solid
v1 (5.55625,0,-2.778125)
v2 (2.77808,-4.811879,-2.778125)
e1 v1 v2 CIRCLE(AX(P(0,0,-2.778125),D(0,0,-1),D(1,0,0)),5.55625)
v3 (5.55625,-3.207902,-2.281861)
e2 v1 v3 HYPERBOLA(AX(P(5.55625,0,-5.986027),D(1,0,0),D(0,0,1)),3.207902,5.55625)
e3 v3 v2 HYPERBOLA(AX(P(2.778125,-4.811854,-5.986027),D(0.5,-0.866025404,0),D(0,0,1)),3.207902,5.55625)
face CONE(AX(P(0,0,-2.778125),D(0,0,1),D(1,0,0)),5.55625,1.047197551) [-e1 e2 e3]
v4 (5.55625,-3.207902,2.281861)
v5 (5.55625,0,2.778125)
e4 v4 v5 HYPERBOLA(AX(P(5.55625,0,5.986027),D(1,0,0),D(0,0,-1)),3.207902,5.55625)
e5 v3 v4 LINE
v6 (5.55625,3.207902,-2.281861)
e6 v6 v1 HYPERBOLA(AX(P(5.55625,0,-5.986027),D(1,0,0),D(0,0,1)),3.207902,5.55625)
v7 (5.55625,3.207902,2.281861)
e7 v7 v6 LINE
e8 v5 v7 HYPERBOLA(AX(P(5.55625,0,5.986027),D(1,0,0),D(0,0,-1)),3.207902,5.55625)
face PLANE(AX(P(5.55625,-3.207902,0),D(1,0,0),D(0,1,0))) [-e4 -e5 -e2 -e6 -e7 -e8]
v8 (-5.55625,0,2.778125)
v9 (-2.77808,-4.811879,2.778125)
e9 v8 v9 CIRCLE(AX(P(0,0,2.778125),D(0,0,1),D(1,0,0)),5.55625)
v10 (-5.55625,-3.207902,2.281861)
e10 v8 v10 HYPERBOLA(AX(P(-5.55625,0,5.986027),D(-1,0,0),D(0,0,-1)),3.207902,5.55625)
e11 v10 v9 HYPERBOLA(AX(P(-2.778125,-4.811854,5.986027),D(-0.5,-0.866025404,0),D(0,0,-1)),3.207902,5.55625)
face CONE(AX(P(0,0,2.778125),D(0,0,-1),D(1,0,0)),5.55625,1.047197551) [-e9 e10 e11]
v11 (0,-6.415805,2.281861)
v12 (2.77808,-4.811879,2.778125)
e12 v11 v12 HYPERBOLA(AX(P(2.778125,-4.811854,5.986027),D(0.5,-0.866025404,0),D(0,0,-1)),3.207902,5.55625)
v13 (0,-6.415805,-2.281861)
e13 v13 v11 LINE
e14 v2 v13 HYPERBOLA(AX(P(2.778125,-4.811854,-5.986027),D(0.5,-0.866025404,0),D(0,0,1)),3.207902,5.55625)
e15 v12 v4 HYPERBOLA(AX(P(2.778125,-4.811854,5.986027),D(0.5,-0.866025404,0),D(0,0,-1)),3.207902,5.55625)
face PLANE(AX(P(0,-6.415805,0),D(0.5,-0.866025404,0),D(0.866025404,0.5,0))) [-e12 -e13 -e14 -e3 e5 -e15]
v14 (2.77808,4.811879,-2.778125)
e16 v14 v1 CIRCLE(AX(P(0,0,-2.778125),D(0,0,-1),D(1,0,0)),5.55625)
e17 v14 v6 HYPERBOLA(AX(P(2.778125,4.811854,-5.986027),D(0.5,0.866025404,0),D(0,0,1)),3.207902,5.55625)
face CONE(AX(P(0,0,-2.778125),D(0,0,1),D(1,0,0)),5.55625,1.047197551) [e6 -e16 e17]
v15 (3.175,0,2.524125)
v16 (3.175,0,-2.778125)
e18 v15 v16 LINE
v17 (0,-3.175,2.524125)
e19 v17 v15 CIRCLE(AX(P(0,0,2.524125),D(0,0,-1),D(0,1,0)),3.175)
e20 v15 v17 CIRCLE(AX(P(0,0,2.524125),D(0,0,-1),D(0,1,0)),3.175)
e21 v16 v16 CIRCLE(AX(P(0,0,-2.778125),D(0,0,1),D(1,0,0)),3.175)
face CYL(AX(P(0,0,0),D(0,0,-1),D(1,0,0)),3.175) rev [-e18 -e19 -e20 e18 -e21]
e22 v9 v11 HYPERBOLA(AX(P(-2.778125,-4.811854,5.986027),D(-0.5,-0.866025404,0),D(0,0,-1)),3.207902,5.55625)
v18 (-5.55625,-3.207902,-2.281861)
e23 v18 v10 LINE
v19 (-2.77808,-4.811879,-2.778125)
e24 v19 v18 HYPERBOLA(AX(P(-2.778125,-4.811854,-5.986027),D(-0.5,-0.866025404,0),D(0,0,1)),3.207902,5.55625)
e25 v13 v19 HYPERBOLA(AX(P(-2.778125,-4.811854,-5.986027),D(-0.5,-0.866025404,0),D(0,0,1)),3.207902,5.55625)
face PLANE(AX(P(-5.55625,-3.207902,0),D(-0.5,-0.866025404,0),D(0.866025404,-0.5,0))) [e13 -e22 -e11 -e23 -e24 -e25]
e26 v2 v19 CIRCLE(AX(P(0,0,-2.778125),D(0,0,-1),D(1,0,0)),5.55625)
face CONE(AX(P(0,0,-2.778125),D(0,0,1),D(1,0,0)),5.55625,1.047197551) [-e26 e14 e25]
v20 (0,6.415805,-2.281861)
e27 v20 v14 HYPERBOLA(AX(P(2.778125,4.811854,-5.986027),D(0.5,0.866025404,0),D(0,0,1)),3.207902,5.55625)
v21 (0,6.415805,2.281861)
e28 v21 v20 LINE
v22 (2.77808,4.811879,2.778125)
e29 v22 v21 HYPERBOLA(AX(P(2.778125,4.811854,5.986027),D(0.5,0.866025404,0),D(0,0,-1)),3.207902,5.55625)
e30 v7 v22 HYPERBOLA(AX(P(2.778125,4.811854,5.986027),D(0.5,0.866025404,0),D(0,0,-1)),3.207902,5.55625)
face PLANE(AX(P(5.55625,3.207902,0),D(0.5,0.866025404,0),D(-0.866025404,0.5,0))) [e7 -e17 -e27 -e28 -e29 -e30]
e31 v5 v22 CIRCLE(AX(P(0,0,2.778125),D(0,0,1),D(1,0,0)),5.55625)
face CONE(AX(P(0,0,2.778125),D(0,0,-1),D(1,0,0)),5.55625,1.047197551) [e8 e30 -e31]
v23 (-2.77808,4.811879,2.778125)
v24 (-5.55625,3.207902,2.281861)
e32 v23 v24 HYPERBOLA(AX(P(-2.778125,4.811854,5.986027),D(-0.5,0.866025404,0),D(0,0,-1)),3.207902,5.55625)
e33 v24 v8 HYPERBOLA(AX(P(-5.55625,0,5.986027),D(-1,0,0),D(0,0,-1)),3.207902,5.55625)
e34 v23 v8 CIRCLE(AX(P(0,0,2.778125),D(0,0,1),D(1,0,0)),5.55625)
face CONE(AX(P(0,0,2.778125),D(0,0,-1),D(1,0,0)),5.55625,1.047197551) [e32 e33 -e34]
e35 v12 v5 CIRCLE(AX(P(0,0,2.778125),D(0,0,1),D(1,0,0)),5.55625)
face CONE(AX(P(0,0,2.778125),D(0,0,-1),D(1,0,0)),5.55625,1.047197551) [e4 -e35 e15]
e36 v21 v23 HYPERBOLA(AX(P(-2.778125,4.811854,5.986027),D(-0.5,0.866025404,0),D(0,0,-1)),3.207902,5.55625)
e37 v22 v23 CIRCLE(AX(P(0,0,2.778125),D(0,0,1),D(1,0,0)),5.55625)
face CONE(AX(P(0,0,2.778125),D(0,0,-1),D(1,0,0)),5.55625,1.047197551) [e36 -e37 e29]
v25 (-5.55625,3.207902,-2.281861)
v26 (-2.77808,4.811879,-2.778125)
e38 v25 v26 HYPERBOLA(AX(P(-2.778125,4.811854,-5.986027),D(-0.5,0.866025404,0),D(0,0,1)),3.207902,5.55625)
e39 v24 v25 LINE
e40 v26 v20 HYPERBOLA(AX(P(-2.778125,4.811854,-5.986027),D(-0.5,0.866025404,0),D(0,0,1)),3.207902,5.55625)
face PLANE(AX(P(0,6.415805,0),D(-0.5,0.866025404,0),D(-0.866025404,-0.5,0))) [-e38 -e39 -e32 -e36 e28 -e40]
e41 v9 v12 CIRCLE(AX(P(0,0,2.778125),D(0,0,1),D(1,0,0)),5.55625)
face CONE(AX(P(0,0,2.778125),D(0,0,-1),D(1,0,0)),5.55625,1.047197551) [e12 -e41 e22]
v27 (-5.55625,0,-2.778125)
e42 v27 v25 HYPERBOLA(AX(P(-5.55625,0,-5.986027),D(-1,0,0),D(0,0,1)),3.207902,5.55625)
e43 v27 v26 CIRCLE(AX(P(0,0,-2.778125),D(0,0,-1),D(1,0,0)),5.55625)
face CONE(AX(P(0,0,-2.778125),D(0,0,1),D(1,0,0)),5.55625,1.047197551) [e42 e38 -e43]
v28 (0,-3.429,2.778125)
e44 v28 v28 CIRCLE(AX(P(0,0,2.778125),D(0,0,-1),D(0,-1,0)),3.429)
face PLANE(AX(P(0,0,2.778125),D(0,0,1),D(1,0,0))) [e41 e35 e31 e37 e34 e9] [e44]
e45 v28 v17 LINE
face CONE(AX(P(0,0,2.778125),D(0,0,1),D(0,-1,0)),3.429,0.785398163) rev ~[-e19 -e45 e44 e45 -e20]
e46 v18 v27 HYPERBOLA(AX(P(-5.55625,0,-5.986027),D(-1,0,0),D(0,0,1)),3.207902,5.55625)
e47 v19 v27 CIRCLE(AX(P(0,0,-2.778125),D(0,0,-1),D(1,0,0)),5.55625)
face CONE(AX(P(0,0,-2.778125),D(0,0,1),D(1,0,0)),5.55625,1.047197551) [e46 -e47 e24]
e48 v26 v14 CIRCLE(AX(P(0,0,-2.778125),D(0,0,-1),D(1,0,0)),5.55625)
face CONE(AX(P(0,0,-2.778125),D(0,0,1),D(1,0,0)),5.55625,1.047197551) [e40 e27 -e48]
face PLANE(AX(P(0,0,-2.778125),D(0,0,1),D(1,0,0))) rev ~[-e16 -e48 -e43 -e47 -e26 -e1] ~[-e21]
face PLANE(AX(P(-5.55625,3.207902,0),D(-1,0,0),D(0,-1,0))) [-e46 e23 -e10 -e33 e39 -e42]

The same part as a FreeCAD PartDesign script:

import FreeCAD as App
import Part
import Sketcher
Q = App.Units.Quantity


def faces_at(feature, points):
    """Names of the faces that lie closest to the given points."""
    faces = feature.Shape.Faces
    near = lambda p: min(range(len(faces)), key=lambda i: faces[i].distToShape(Part.Vertex(*p))[0])
    return sorted({f"Face{near(p) + 1}" for p in points})

doc = App.newDocument("Part")
params = doc.addObject("Spreadsheet::Sheet", "Params")
for row, (alias, value) in enumerate([
    ("sketch1_diameter", "0.25 in"),
    ("pad1_length", "0.21875 in"),
    ("sketch2_diameter", "0.4375 in"),
    ("pad2_length", "11.144278 mm"),
    ("draft_angle", "60 deg"),
    ("sketch3_diameter", "0.4375 in"),
    ("pad3_length", "11.144278 mm"),
    ("draft2_angle", "60 deg"),
    ("sketch4_width", "0.135 in"),
    ("groove_angle", "360 deg"),
], start=1):
    params.set(f"A{row}", alias)
    params.set(f"B{row}", "=" + value)
    params.setAlias(f"B{row}", alias)

body = doc.addObject("PartDesign::Body", "Body")

sketch1 = doc.addObject("Sketcher::SketchObject", "Sketch")
body.addObject(sketch1)
sketch1.AttachmentSupport = (doc.XY_Plane, [""])
sketch1.MapMode = "FlatFace"
sketch1.addGeometry(Part.LineSegment(App.Vector(-5.55625, 3.207902, 0), App.Vector(-5.55625, -3.207902, 0)), False)
sketch1.addGeometry(Part.LineSegment(App.Vector(-5.55625, -3.207902, 0), App.Vector(0, -6.415805, 0)), False)
sketch1.addGeometry(Part.LineSegment(App.Vector(0, -6.415805, 0), App.Vector(5.55625, -3.207902, 0)), False)
sketch1.addGeometry(Part.LineSegment(App.Vector(5.55625, -3.207902, 0), App.Vector(5.55625, 3.207902, 0)), False)
sketch1.addGeometry(Part.LineSegment(App.Vector(5.55625, 3.207902, 0), App.Vector(0, 6.415805, 0)), False)
sketch1.addGeometry(Part.LineSegment(App.Vector(0, 6.415805, 0), App.Vector(-5.55625, 3.207902, 0)), False)
sketch1.addGeometry(Part.Circle(App.Vector(0, 0, 0), App.Vector(0, 0, 1), 3.175), False)
sketch1.addConstraint(Sketcher.Constraint("Coincident", 0, 2, 1, 1))
sketch1.addConstraint(Sketcher.Constraint("Coincident", 1, 2, 2, 1))
sketch1.addConstraint(Sketcher.Constraint("Coincident", 2, 2, 3, 1))
sketch1.addConstraint(Sketcher.Constraint("Coincident", 3, 2, 4, 1))
sketch1.addConstraint(Sketcher.Constraint("Coincident", 4, 2, 5, 1))
sketch1.addConstraint(Sketcher.Constraint("Coincident", 5, 2, 0, 1))
sketch1.addConstraint(Sketcher.Constraint("Vertical", 0))
sketch1.addConstraint(Sketcher.Constraint("Vertical", 3))
sketch1.addConstraint(Sketcher.Constraint("Coincident", 6, 3, -1, 1))
sketch1.addConstraint(Sketcher.Constraint("Symmetric", 0, 2, 3, 2, -1, 1))
sketch1.addConstraint(Sketcher.Constraint("Symmetric", 1, 2, 4, 2, -1, 1))
sketch1.addConstraint(Sketcher.Constraint("PointOnObject", 1, 2, -2))
sketch1.addConstraint(Sketcher.Constraint("Parallel", 2, 5))
sketch1.addConstraint(Sketcher.Constraint("Horizontal", 0, 2, 2, 2))
sketch1.addConstraint(Sketcher.Constraint("Diameter", 6, Q("0.25 in")))
sketch1.addConstraint(Sketcher.Constraint("Angle", 1, Q("-30 deg")))
sketch1.addConstraint(Sketcher.Constraint("DistanceX", 0, 2, -1, 1, Q("0.21875 in")))
sketch1.addConstraint(Sketcher.Constraint("DistanceY", 0, 2, 0, 1, 6.415805))
sketch1.setExpression("Constraints[14]", "Params.sketch1_diameter")
pad1 = doc.addObject("PartDesign::Pad", "Pad")
body.addObject(pad1)
pad1.Profile = sketch1
pad1.setExpression("Length", "Params.pad1_length")
pad1.Midplane = True
body2 = doc.addObject("PartDesign::Body", "Body001")

sketch2 = doc.addObject("Sketcher::SketchObject", "Sketch001")
body2.addObject(sketch2)
sketch2.AttachmentSupport = (doc.getObject("XY_Plane001"), [""])
sketch2.MapMode = "FlatFace"
sketch2.AttachmentOffset = App.Placement(App.Vector(0, 0, 0.109375 * 25.4), App.Rotation())
sketch2.addGeometry(Part.LineSegment(App.Vector(-27.645, 28.505, 0), App.Vector(-27.645, -28.505, 0)), False)
sketch2.addGeometry(Part.LineSegment(App.Vector(-27.645, -28.505, 0), App.Vector(27.645, -28.505, 0)), False)
sketch2.addGeometry(Part.LineSegment(App.Vector(27.645, -28.505, 0), App.Vector(27.645, 28.505, 0)), False)
sketch2.addGeometry(Part.LineSegment(App.Vector(27.645, 28.505, 0), App.Vector(-27.645, 28.505, 0)), False)
sketch2.addGeometry(Part.Circle(App.Vector(0, 0, 0), App.Vector(0, 0, 1), 5.55625), False)
sketch2.addConstraint(Sketcher.Constraint("Coincident", 0, 2, 1, 1))
sketch2.addConstraint(Sketcher.Constraint("Coincident", 1, 2, 2, 1))
sketch2.addConstraint(Sketcher.Constraint("Coincident", 2, 2, 3, 1))
sketch2.addConstraint(Sketcher.Constraint("Coincident", 3, 2, 0, 1))
sketch2.addConstraint(Sketcher.Constraint("Vertical", 0))
sketch2.addConstraint(Sketcher.Constraint("Horizontal", 1))
sketch2.addConstraint(Sketcher.Constraint("Vertical", 2))
sketch2.addConstraint(Sketcher.Constraint("Horizontal", 3))
sketch2.addConstraint(Sketcher.Constraint("Coincident", 4, 3, -1, 1))
sketch2.addConstraint(Sketcher.Constraint("Symmetric", 0, 2, 2, 2, -1, 1))
sketch2.addConstraint(Sketcher.Constraint("Diameter", 4, Q("0.4375 in")))
sketch2.addConstraint(Sketcher.Constraint("DistanceX", 1, 1, 1, 2, 55.29))
sketch2.addConstraint(Sketcher.Constraint("DistanceY", 0, 2, 0, 1, 57.01))
sketch2.setExpression("Constraints[10]", "Params.sketch2_diameter")
pad2 = doc.addObject("PartDesign::Pad", "Pad001")
body2.addObject(pad2)
pad2.Profile = sketch2
pad2.setExpression("Length", "Params.pad2_length")
pad2.Reversed = True
doc.recompute()

datumplane = doc.addObject("PartDesign::Plane", "DatumPlane")
body2.addObject(datumplane)
datumplane.AttachmentSupport = (doc.getObject("XY_Plane001"), [""])
datumplane.MapMode = "FlatFace"
datumplane.AttachmentOffset = App.Placement(App.Vector(0, 0, 0.109375 * 25.4), App.Rotation())
draft = doc.addObject("PartDesign::Draft", "Draft")
body2.addObject(draft)
draft.Base = (pad2, faces_at(pad2, [
    (0, -28.505, -2.794),
    (27.645, 0, -2.794),
    (0, 28.505, -2.794),
    (-27.645, 0, -2.794),
    (-5.556, 0, -2.794),
]))
draft.NeutralPlane = (datumplane, [""])
draft.setExpression("Angle", "Params.draft_angle")
draft.Reversed = True
doc.recompute()

boolean = doc.addObject("PartDesign::Boolean", "Boolean")
body.addObject(boolean)
boolean.Type = "Cut"
boolean.addObjects([body2])
body3 = doc.addObject("PartDesign::Body", "Body002")

sketch3 = doc.addObject("Sketcher::SketchObject", "Sketch002")
body3.addObject(sketch3)
sketch3.AttachmentSupport = (doc.getObject("XY_Plane002"), [""])
sketch3.MapMode = "FlatFace"
sketch3.AttachmentOffset = App.Placement(App.Vector(0, 0, -0.109375 * 25.4), App.Rotation())
sketch3.addGeometry(Part.LineSegment(App.Vector(-27.645, -28.505, 0), App.Vector(-27.645, 28.505, 0)), False)
sketch3.addGeometry(Part.LineSegment(App.Vector(-27.645, 28.505, 0), App.Vector(27.645, 28.505, 0)), False)
sketch3.addGeometry(Part.LineSegment(App.Vector(27.645, 28.505, 0), App.Vector(27.645, -28.505, 0)), False)
sketch3.addGeometry(Part.LineSegment(App.Vector(27.645, -28.505, 0), App.Vector(-27.645, -28.505, 0)), False)
sketch3.addGeometry(Part.Circle(App.Vector(0, 0, 0), App.Vector(0, 0, 1), 5.55625), False)
sketch3.addConstraint(Sketcher.Constraint("Coincident", 0, 2, 1, 1))
sketch3.addConstraint(Sketcher.Constraint("Coincident", 1, 2, 2, 1))
sketch3.addConstraint(Sketcher.Constraint("Coincident", 2, 2, 3, 1))
sketch3.addConstraint(Sketcher.Constraint("Coincident", 3, 2, 0, 1))
sketch3.addConstraint(Sketcher.Constraint("Vertical", 0))
sketch3.addConstraint(Sketcher.Constraint("Horizontal", 1))
sketch3.addConstraint(Sketcher.Constraint("Vertical", 2))
sketch3.addConstraint(Sketcher.Constraint("Horizontal", 3))
sketch3.addConstraint(Sketcher.Constraint("Coincident", 4, 3, -1, 1))
sketch3.addConstraint(Sketcher.Constraint("Symmetric", 0, 2, 2, 2, -1, 1))
sketch3.addConstraint(Sketcher.Constraint("Diameter", 4, Q("0.4375 in")))
sketch3.addConstraint(Sketcher.Constraint("DistanceX", 1, 1, 1, 2, 55.29))
sketch3.addConstraint(Sketcher.Constraint("DistanceY", 0, 1, 0, 2, 57.01))
sketch3.setExpression("Constraints[10]", "Params.sketch3_diameter")
pad3 = doc.addObject("PartDesign::Pad", "Pad002")
body3.addObject(pad3)
pad3.Profile = sketch3
pad3.setExpression("Length", "Params.pad3_length")
doc.recompute()

datumplane2 = doc.addObject("PartDesign::Plane", "DatumPlane001")
body3.addObject(datumplane2)
datumplane2.AttachmentSupport = (doc.getObject("XY_Plane002"), [""])
datumplane2.MapMode = "FlatFace"
datumplane2.AttachmentOffset = App.Placement(App.Vector(0, 0, -0.109375 * 25.4), App.Rotation())
draft2 = doc.addObject("PartDesign::Draft", "Draft001")
body3.addObject(draft2)
draft2.Base = (pad3, faces_at(pad3, [
    (0, -28.505, 2.794),
    (27.645, 0, 2.794),
    (0, 28.505, 2.794),
    (-27.645, 0, 2.794),
    (-5.556, 0, 2.794),
]))
draft2.NeutralPlane = (datumplane2, [""])
draft2.setExpression("Angle", "Params.draft2_angle")
draft2.Reversed = False
doc.recompute()

boolean2 = doc.addObject("PartDesign::Boolean", "Boolean001")
body.addObject(boolean2)
boolean2.Type = "Cut"
boolean2.addObjects([body3])

sketch4 = doc.addObject("Sketcher::SketchObject", "Sketch003")
body.addObject(sketch4)
sketch4.AttachmentSupport = (doc.YZ_Plane, [""])
sketch4.MapMode = "FlatFace"
sketch4.addGeometry(Part.LineSegment(App.Vector(0, 2.778125, 0), App.Vector(-3.429, 2.778125, 0)), False)
sketch4.addGeometry(Part.LineSegment(App.Vector(-3.429, 2.778125, 0), App.Vector(0, -0.650875, 0)), False)
sketch4.addGeometry(Part.LineSegment(App.Vector(0, -0.650875, 0), App.Vector(0, 2.778125, 0)), False)
sketch4.addConstraint(Sketcher.Constraint("Coincident", 0, 2, 1, 1))
sketch4.addConstraint(Sketcher.Constraint("Coincident", 1, 2, 2, 1))
sketch4.addConstraint(Sketcher.Constraint("Coincident", 2, 2, 0, 1))
sketch4.addConstraint(Sketcher.Constraint("Horizontal", 0))
sketch4.addConstraint(Sketcher.Constraint("Vertical", 2))
sketch4.addConstraint(Sketcher.Constraint("PointOnObject", 1, 2, -2))
sketch4.addConstraint(Sketcher.Constraint("Equal", 0, 2))
sketch4.addConstraint(Sketcher.Constraint("DistanceX", 0, 2, 0, 1, Q("0.135 in")))
sketch4.addConstraint(Sketcher.Constraint("DistanceY", -1, 1, 0, 2, Q("0.109375 in")))
sketch4.setExpression("Constraints[7]", "Params.sketch4_width")
groove = doc.addObject("PartDesign::Groove", "Groove")
body.addObject(groove)
groove.Profile = sketch4
groove.ReferenceAxis = (sketch4, ["V_Axis"])
groove.setExpression("Angle", "Params.groove_angle")

doc.recompute()
